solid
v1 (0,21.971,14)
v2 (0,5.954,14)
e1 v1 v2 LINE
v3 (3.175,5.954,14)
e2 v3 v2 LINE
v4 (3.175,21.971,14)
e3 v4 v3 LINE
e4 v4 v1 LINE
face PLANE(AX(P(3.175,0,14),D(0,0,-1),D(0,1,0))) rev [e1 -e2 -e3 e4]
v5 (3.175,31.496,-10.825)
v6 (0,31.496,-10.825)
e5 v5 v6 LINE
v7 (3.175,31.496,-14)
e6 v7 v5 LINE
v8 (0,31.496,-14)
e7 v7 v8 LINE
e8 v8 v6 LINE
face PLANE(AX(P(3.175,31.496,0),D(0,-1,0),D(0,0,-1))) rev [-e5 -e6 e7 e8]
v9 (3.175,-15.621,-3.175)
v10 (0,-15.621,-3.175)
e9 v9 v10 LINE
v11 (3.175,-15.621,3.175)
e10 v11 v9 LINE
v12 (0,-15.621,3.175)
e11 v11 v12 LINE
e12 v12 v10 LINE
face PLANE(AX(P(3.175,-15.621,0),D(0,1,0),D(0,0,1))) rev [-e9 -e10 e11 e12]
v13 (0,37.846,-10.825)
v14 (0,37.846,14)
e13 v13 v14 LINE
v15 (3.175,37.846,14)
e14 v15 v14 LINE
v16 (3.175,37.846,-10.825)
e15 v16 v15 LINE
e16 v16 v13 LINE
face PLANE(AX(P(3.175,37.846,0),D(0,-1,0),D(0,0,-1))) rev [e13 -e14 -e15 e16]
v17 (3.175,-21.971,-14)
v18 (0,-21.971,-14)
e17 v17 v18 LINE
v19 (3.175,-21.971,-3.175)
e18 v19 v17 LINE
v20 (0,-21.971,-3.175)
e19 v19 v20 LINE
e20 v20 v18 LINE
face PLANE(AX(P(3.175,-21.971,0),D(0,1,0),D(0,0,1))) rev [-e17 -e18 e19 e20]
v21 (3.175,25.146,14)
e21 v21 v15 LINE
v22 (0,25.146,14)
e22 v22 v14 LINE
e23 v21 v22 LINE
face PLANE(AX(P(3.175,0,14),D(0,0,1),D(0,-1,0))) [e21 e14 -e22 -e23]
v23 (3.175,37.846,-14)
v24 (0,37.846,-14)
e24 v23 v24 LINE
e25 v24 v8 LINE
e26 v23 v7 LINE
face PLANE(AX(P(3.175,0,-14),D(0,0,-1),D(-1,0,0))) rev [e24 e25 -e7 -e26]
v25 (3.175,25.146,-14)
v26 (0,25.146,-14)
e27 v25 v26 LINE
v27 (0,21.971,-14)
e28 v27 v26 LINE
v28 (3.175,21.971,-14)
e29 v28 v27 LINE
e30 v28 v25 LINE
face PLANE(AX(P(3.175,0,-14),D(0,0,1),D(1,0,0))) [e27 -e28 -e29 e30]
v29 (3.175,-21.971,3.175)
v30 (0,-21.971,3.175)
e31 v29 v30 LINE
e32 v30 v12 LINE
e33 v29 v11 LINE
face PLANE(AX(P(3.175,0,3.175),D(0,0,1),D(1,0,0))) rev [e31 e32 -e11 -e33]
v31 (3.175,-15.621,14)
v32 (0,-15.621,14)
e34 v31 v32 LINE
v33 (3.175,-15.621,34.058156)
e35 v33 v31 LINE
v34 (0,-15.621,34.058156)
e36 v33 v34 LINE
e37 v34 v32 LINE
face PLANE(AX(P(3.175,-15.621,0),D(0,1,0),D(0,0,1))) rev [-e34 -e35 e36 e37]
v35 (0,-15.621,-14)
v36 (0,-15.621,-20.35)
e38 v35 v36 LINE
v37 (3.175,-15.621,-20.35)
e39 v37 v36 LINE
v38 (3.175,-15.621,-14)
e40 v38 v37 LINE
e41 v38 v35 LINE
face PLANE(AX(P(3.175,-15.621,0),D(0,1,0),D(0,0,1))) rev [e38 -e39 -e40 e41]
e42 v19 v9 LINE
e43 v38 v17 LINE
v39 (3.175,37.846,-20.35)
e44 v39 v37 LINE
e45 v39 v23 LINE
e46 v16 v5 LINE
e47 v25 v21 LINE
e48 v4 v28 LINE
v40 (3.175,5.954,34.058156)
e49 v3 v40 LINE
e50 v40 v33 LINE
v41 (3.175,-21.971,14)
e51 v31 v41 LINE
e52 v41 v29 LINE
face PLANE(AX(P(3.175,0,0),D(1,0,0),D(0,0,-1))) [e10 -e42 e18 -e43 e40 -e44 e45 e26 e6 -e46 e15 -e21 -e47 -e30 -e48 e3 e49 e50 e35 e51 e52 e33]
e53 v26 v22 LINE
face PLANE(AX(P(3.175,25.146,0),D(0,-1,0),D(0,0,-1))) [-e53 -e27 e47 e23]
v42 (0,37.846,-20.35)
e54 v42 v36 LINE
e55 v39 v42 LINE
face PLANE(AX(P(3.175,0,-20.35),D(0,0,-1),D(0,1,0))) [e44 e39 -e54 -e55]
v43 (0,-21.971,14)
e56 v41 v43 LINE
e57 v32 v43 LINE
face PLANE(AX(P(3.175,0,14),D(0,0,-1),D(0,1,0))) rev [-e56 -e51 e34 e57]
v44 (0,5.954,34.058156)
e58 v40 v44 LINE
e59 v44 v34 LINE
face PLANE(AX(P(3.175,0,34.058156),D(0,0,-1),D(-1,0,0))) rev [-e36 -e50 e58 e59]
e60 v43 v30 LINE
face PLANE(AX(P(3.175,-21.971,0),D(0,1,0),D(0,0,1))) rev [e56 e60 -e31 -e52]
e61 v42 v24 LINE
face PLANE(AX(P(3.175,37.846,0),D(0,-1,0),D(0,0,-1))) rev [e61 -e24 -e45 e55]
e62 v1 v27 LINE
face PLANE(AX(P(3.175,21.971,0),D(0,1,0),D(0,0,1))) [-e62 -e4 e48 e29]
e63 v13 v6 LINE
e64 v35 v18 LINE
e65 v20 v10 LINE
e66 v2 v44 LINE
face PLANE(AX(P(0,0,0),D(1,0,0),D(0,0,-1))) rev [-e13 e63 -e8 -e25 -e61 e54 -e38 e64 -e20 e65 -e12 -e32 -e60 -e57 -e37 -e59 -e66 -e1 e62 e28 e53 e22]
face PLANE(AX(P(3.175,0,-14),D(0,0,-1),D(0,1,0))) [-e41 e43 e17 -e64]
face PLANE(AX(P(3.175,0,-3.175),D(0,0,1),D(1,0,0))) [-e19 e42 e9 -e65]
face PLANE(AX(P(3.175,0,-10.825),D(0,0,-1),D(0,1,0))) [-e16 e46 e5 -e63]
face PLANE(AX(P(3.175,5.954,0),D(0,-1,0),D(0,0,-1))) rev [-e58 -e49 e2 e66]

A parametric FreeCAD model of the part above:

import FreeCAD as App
import Part
import Sketcher
from FreeCAD import Vector
Q = App.Units.Quantity

doc = App.newDocument("Part")
body = doc.addObject("PartDesign::Body", "Body")

# Sketch on YZ plane
sketch1 = body.newObject("Sketcher::SketchObject", "Sketch")
sketch1.AttachmentSupport = (doc.getObject("YZ_Plane"), [""])
sketch1.MapMode = "FlatFace"
sketch1.addGeometry([
    Part.LineSegment(Vector(-21.971, -14, 0), Vector(-15.621, -14, 0)),  # 0
    Part.LineSegment(Vector(-15.621, -14, 0), Vector(-15.621, -20.35, 0)),  # 1
    Part.LineSegment(Vector(-15.621, -20.35, 0), Vector(37.846, -20.35, 0)),  # 2
    Part.LineSegment(Vector(37.846, -20.35, 0), Vector(37.846, -14, 0)),  # 3
    Part.LineSegment(Vector(37.846, -14, 0), Vector(31.496, -14, 0)),  # 4
    Part.LineSegment(Vector(31.496, -14, 0), Vector(31.496, -10.825, 0)),  # 5
    Part.LineSegment(Vector(31.496, -10.825, 0), Vector(37.846, -10.825, 0)),  # 6
    Part.LineSegment(Vector(37.846, -10.825, 0), Vector(37.846, 14, 0)),  # 7
    Part.LineSegment(Vector(37.846, 14, 0), Vector(25.146, 14, 0)),  # 8
    Part.LineSegment(Vector(25.146, 14, 0), Vector(25.146, -14, 0)),  # 9
    Part.LineSegment(Vector(25.146, -14, 0), Vector(21.971, -14, 0)),  # 10
    Part.LineSegment(Vector(21.971, -14, 0), Vector(21.971, 14, 0)),  # 11
    Part.LineSegment(Vector(21.971, 14, 0), Vector(5.954, 14, 0)),  # 12
    Part.LineSegment(Vector(5.954, 14, 0), Vector(5.954, 34.058156, 0)),  # 13
    Part.LineSegment(Vector(5.954, 34.058156, 0), Vector(-15.621, 34.058156, 0)),  # 14
    Part.LineSegment(Vector(-15.621, 34.058156, 0), Vector(-15.621, 14, 0)),  # 15
    Part.LineSegment(Vector(-15.621, 14, 0), Vector(-21.971, 14, 0)),  # 16
    Part.LineSegment(Vector(-21.971, 14, 0), Vector(-21.971, 3.175, 0)),  # 17
    Part.LineSegment(Vector(-21.971, 3.175, 0), Vector(-15.621, 3.175, 0)),  # 18
    Part.LineSegment(Vector(-15.621, 3.175, 0), Vector(-15.621, -3.175, 0)),  # 19
    Part.LineSegment(Vector(-15.621, -3.175, 0), Vector(-21.971, -3.175, 0)),  # 20
    Part.LineSegment(Vector(-21.971, -3.175, 0), Vector(-21.971, -14, 0)),  # 21
], False)
sketch1.addConstraint([
    Sketcher.Constraint("Coincident", 0, 2, 1, 1),
    Sketcher.Constraint("Coincident", 1, 2, 2, 1),
    Sketcher.Constraint("Coincident", 2, 2, 3, 1),
    Sketcher.Constraint("Coincident", 3, 2, 4, 1),
    Sketcher.Constraint("Coincident", 4, 2, 5, 1),
    Sketcher.Constraint("Coincident", 5, 2, 6, 1),
    Sketcher.Constraint("Coincident", 6, 2, 7, 1),
    Sketcher.Constraint("Coincident", 7, 2, 8, 1),
    Sketcher.Constraint("Coincident", 8, 2, 9, 1),
    Sketcher.Constraint("Coincident", 9, 2, 10, 1),
    Sketcher.Constraint("Coincident", 10, 2, 11, 1),
    Sketcher.Constraint("Coincident", 11, 2, 12, 1),
    Sketcher.Constraint("Coincident", 12, 2, 13, 1),
    Sketcher.Constraint("Coincident", 13, 2, 14, 1),
    Sketcher.Constraint("Coincident", 14, 2, 15, 1),
    Sketcher.Constraint("Coincident", 15, 2, 16, 1),
    Sketcher.Constraint("Coincident", 16, 2, 17, 1),
    Sketcher.Constraint("Coincident", 17, 2, 18, 1),
    Sketcher.Constraint("Coincident", 18, 2, 19, 1),
    Sketcher.Constraint("Coincident", 19, 2, 20, 1),
    Sketcher.Constraint("Coincident", 20, 2, 21, 1),
    Sketcher.Constraint("Coincident", 21, 2, 0, 1),
    Sketcher.Constraint("Horizontal", 0),
    Sketcher.Constraint("Vertical", 1),
    Sketcher.Constraint("Horizontal", 2),
    Sketcher.Constraint("Vertical", 3),
    Sketcher.Constraint("Horizontal", 4),
    Sketcher.Constraint("Vertical", 5),
    Sketcher.Constraint("Horizontal", 6),
    Sketcher.Constraint("Vertical", 7),
    Sketcher.Constraint("Horizontal", 8),
    Sketcher.Constraint("Vertical", 9),
    Sketcher.Constraint("Horizontal", 10),
    Sketcher.Constraint("Vertical", 11),
    Sketcher.Constraint("Horizontal", 12),
    Sketcher.Constraint("Vertical", 13),
    Sketcher.Constraint("Horizontal", 14),
    Sketcher.Constraint("Vertical", 15),
    Sketcher.Constraint("Horizontal", 16),
    Sketcher.Constraint("Vertical", 17),
    Sketcher.Constraint("Horizontal", 18),
    Sketcher.Constraint("Vertical", 19),
    Sketcher.Constraint("Horizontal", 20),
    Sketcher.Constraint("Vertical", 21),
    Sketcher.Constraint("Symmetric", 10, 2, 16, 2, -1, 1),
    Sketcher.Constraint("Symmetric", 11, 2, 21, 2, -1, 1),
    Sketcher.Constraint("Symmetric", 3, 2, 7, 2, -1),
    Sketcher.Constraint("Symmetric", 0, 2, 15, 2, -1),
    Sketcher.Constraint("Horizontal", 0, 2, 3, 2),
    Sketcher.Constraint("Vertical", 15, 2, 18, 2),
    Sketcher.Constraint("Equal", 0, 4),
    Sketcher.Constraint("Equal", 20, 1),
    Sketcher.Constraint("Equal", 10, 5),
    Sketcher.Constraint("Equal", 3, 19),
    Sketcher.Constraint("Equal", 17, 21),
    Sketcher.Constraint("DistanceX", 8, 2, 8, 1, Q("0.5 in")),
    Sketcher.Constraint("DistanceX", 0, 1, 0, 2, Q("0.25 in")),
    Sketcher.Constraint("DistanceX", 2, 1, 2, 2, Q("2.105 in")),
    Sketcher.Constraint("DistanceX", 10, 2, 10, 1, Q("0.125 in")),
    Sketcher.Constraint("DistanceX", 12, 2, 12, 1, 16.017),
    Sketcher.Constraint("DistanceY", 7, 1, 7, 2, 24.825),
    Sketcher.Constraint("DistanceY", 13, 1, 13, 2, 20.058156),
])
pad1 = body.newObject("PartDesign::Pad", "Pad")
pad1.Profile = sketch1
pad1.Length = Q("0.125 in")

doc.recompute()
